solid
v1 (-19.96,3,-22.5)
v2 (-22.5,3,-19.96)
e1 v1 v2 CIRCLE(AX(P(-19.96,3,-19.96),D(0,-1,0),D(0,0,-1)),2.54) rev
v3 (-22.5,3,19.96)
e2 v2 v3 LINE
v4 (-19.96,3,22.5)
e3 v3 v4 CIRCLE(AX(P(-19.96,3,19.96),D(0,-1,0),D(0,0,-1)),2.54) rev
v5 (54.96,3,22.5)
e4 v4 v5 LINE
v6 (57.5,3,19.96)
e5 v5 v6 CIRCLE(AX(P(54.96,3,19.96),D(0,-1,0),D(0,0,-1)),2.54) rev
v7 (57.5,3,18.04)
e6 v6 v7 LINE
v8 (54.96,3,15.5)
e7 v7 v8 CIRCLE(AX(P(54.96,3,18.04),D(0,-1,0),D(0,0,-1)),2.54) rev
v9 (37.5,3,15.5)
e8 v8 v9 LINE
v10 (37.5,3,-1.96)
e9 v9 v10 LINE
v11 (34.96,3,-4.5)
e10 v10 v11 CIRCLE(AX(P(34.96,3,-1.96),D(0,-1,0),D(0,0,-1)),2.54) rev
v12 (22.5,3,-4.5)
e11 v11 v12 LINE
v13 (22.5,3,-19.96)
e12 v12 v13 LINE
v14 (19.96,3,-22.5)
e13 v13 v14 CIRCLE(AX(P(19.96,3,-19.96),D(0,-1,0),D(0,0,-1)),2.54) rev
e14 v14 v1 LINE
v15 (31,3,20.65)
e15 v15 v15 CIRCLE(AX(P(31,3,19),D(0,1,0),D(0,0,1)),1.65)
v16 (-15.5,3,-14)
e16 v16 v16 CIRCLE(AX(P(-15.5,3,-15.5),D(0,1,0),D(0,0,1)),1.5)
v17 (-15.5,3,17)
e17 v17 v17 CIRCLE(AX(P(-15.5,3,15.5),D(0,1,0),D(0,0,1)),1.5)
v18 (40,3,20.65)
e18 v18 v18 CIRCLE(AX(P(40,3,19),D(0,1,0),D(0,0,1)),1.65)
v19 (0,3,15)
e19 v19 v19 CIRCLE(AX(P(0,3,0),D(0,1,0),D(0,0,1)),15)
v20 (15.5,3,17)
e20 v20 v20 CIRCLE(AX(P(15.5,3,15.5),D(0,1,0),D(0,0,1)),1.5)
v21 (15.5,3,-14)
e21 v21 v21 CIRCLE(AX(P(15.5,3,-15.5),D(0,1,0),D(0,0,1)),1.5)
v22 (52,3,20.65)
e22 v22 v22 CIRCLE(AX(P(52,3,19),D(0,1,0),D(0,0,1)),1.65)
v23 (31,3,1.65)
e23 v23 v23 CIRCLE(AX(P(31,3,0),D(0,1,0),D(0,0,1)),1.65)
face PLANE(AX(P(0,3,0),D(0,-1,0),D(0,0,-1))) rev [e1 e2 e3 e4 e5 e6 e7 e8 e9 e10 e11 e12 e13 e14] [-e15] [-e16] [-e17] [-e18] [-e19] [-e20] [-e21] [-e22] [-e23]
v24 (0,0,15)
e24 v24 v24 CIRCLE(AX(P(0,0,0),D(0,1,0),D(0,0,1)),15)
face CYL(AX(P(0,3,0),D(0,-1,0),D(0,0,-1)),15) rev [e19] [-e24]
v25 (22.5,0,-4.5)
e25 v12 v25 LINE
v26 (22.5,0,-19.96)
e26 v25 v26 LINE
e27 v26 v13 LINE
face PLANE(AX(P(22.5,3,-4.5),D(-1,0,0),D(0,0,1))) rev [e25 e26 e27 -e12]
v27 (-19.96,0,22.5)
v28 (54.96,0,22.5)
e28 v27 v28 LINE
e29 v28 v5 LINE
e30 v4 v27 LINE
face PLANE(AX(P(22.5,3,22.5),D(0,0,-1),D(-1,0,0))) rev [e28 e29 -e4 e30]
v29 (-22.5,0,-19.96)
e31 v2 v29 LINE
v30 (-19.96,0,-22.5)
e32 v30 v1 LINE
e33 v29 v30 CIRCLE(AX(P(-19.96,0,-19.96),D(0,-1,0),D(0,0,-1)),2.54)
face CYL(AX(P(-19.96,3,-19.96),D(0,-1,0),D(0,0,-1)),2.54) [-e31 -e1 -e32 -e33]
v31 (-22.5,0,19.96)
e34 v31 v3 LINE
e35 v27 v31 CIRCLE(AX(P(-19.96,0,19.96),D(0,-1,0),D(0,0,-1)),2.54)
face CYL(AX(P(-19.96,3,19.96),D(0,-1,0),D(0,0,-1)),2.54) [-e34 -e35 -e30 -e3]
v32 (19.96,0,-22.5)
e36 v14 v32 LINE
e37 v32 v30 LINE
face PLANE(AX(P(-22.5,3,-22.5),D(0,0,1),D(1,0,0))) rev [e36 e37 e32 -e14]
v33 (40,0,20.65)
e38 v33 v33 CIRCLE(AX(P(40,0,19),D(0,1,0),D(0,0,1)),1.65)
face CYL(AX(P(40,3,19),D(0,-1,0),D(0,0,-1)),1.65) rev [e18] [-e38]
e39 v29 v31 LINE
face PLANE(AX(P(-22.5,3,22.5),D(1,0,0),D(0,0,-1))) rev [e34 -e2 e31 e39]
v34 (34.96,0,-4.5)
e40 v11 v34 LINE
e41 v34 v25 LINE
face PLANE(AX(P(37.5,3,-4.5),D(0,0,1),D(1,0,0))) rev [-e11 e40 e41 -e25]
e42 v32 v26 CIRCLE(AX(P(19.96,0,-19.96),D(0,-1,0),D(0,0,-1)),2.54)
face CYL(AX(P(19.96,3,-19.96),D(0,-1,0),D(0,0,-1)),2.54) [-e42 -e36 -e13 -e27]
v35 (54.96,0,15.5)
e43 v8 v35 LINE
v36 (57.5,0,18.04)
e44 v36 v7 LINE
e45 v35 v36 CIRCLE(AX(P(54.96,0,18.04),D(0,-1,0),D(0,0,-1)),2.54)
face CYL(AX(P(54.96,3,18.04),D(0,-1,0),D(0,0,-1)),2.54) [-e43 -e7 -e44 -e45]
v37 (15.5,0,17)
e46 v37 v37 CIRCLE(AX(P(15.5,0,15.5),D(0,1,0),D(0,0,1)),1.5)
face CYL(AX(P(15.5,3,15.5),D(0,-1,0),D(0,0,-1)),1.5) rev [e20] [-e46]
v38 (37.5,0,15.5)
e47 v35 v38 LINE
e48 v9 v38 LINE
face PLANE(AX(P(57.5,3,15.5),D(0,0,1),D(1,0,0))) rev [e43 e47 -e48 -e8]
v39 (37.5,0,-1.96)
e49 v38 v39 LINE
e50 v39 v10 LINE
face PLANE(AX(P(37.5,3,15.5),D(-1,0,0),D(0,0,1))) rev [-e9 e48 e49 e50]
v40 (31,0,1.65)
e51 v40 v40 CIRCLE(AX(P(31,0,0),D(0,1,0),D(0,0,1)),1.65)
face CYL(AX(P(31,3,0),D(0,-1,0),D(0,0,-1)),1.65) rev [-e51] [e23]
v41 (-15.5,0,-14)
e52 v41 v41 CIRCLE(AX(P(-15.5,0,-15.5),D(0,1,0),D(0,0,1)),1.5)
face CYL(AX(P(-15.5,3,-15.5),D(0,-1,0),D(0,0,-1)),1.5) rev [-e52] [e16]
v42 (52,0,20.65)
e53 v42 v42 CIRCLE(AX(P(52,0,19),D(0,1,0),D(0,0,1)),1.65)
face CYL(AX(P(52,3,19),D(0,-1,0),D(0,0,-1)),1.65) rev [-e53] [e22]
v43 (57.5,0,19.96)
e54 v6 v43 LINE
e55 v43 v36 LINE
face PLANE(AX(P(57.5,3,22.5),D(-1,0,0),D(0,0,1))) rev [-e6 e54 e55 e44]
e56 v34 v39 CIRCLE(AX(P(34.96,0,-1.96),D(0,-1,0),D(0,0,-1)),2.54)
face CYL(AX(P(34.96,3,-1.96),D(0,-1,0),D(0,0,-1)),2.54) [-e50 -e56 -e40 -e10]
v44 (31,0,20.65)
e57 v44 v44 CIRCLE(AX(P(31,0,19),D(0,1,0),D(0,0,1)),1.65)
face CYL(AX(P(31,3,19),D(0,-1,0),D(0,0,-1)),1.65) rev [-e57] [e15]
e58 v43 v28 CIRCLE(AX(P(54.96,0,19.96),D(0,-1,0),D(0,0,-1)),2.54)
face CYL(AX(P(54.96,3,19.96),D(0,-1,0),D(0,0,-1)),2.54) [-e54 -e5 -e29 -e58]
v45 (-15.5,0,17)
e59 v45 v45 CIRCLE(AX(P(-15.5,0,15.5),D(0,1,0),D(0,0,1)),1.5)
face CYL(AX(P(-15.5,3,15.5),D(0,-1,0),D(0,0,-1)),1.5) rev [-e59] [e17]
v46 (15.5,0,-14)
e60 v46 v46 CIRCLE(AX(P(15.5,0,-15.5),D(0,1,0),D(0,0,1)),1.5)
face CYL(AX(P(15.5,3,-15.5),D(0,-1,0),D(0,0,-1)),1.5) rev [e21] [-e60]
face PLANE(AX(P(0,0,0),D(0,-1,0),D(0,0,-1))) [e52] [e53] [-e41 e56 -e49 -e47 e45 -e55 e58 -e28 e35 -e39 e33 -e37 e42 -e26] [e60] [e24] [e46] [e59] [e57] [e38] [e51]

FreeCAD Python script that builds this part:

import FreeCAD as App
import Part
import Sketcher

V = App.Vector
Q = App.Units.Quantity


def edges_at(feature, points):
    """Names of the edges that pass closest to the given points."""
    edges = feature.Shape.Edges
    near = lambda p: min(range(len(edges)), key=lambda i: edges[i].distToShape(Part.Vertex(*p))[0])
    return sorted({f"Edge{near(p) + 1}" for p in points})


def add_polygon(sketch, points):
    """Adds a closed chain of lines whose ends are joined by coincident constraints."""
    first, n = sketch.GeometryCount, len(points)
    for a, b in zip(points, points[1:] + points[:1]):
        sketch.addGeometry(Part.LineSegment(App.Vector(*a, 0), App.Vector(*b, 0)), False)
    for i in range(n):
        sketch.addConstraint(Sketcher.Constraint("Coincident", first + i, 2, first + (i + 1) % n, 1))

doc = App.newDocument("Part")
params = doc.addObject("Spreadsheet::Sheet", "Params")
for row, (alias, value) in enumerate([
    ("sketch1_diameter", "3 mm"),
    ("sketch1_diameter2", "30 mm"),
    ("sketch1_diameter3", "3.3 mm"),
    ("sketch1_width", "20 mm"),
    ("sketch1_width2", "15 mm"),
    ("pad1_length", "3 mm"),
    ("fillet_radius", "2.54 mm"),
], start=1):
    params.set(f"A{row}", alias)
    params.set(f"B{row}", "=" + value)
    params.setAlias(f"B{row}", alias)

body = doc.addObject("PartDesign::Body", "Body")

# Sketch on XZ plane
sketch1 = doc.addObject("Sketcher::SketchObject", "Sketch")
body.addObject(sketch1)
sketch1.AttachmentSupport = (doc.XZ_Plane, [""])
sketch1.MapMode = "FlatFace"
add_polygon(sketch1, [(57.5, 22.5), (57.5, 15.5), (37.5, 15.5), (37.5, -4.5), (22.5, -4.5), (22.5, -22.5), (-22.5, -22.5), (-22.5, 22.5)])  # lines 0-7
sketch1.addGeometry(Part.Circle(V(-15.5, 15.5, 0), V(0, 0, 1), 1.5), False)  # 8
sketch1.addGeometry(Part.Circle(V(15.5, 15.5, 0), V(0, 0, 1), 1.5), False)  # 9
sketch1.addGeometry(Part.Circle(V(31, 19, 0), V(0, 0, 1), 1.65), False)  # 10
sketch1.addGeometry(Part.Circle(V(40, 19, 0), V(0, 0, 1), 1.65), False)  # 11
sketch1.addGeometry(Part.Circle(V(52, 19, 0), V(0, 0, 1), 1.65), False)  # 12
sketch1.addGeometry(Part.Circle(V(0, 0, 0), V(0, 0, 1), 15), False)  # 13
sketch1.addGeometry(Part.Circle(V(-15.5, -15.5, 0), V(0, 0, 1), 1.5), False)  # 14
sketch1.addGeometry(Part.Circle(V(15.5, -15.5, 0), V(0, 0, 1), 1.5), False)  # 15
sketch1.addGeometry(Part.Circle(V(31, 0, 0), V(0, 0, 1), 1.65), False)  # 16
sketch1.addConstraint([
    Sketcher.Constraint("Vertical", 0),
    Sketcher.Constraint("Horizontal", 1),
    Sketcher.Constraint("Vertical", 2),
    Sketcher.Constraint("Horizontal", 3),
    Sketcher.Constraint("Vertical", 4),
    Sketcher.Constraint("Horizontal", 5),
    Sketcher.Constraint("Vertical", 6),
    Sketcher.Constraint("Horizontal", 7),
    Sketcher.Constraint("Coincident", 13, 3, -1, 1),
    Sketcher.Constraint("Equal", 8, 9),
    Sketcher.Constraint("Equal", 10, 11),
    Sketcher.Constraint("Equal", 11, 12),
    Sketcher.Constraint("Equal", 9, 14),
    Sketcher.Constraint("Equal", 14, 15),
    Sketcher.Constraint("Equal", 12, 16),
    Sketcher.Constraint("Symmetric", 9, 3, 14, 3, -1, 1),
    Sketcher.Constraint("Symmetric", 8, 3, 15, 3, -1, 1),
    Sketcher.Constraint("Symmetric", 4, 2, 6, 2, -1, 1),
    Sketcher.Constraint("Symmetric", 8, 3, 9, 3, -2),
    Sketcher.Constraint("PointOnObject", 16, 3, -1),
    Sketcher.Constraint("Horizontal", 10, 3, 11, 3),
    Sketcher.Constraint("Horizontal", 11, 3, 12, 3),
    Sketcher.Constraint("Horizontal", 9, 3, 0, 2),
    Sketcher.Constraint("Vertical", 10, 3, 16, 3),
    Sketcher.Constraint("Equal", 1, 2),
    Sketcher.Constraint("Equal", 5, 6),
    Sketcher.Constraint("Diameter", 8, Q("3 mm")),
    Sketcher.Constraint("Diameter", 13, Q("30 mm")),
    Sketcher.Constraint("Diameter", 10, Q("3.3 mm")),
    Sketcher.Constraint("DistanceX", 1, 2, 1, 1, Q("20 mm")),
    Sketcher.Constraint("DistanceX", 3, 2, 3, 1, Q("15 mm")),
    Sketcher.Constraint("DistanceX", 5, 2, 5, 1, Q("45 mm")),
    Sketcher.Constraint("DistanceY", 0, 2, 0, 1, Q("7 mm")),
    Sketcher.Constraint("DistanceX", -1, 1, 10, 3, Q("31 mm")),
    Sketcher.Constraint("DistanceY", -1, 1, 10, 3, Q("19 mm")),
    Sketcher.Constraint("DistanceX", -1, 1, 11, 3, Q("40 mm")),
    Sketcher.Constraint("DistanceX", -1, 1, 12, 3, Q("52 mm")),
    Sketcher.Constraint("DistanceX", 8, 3, 9, 3, Q("31 mm")),
])
sketch1.setExpression("Constraints[34]", "Params.sketch1_diameter")
sketch1.setExpression("Constraints[35]", "Params.sketch1_diameter2")
sketch1.setExpression("Constraints[36]", "Params.sketch1_diameter3")
sketch1.setExpression("Constraints[37]", "Params.sketch1_width")
sketch1.setExpression("Constraints[38]", "Params.sketch1_width2")
pad1 = doc.addObject("PartDesign::Pad", "Pad")
body.addObject(pad1)
pad1.Profile = sketch1
pad1.setExpression("Length", "Params.pad1_length")
pad1.Reversed = True
doc.recompute()

fillet = doc.addObject("PartDesign::Fillet", "Fillet")
body.addObject(fillet)
fillet.Base = (pad1, edges_at(pad1, [
    (37.5, 1.5, -4.5),
    (57.5, 1.5, 15.5),
    (57.5, 1.5, 22.5),
    (-22.5, 1.5, 22.5),
    (-22.5, 1.5, -22.5),
    (22.5, 1.5, -22.5),
]))
fillet.setExpression("Radius", "Params.fillet_radius")

doc.recompute()
